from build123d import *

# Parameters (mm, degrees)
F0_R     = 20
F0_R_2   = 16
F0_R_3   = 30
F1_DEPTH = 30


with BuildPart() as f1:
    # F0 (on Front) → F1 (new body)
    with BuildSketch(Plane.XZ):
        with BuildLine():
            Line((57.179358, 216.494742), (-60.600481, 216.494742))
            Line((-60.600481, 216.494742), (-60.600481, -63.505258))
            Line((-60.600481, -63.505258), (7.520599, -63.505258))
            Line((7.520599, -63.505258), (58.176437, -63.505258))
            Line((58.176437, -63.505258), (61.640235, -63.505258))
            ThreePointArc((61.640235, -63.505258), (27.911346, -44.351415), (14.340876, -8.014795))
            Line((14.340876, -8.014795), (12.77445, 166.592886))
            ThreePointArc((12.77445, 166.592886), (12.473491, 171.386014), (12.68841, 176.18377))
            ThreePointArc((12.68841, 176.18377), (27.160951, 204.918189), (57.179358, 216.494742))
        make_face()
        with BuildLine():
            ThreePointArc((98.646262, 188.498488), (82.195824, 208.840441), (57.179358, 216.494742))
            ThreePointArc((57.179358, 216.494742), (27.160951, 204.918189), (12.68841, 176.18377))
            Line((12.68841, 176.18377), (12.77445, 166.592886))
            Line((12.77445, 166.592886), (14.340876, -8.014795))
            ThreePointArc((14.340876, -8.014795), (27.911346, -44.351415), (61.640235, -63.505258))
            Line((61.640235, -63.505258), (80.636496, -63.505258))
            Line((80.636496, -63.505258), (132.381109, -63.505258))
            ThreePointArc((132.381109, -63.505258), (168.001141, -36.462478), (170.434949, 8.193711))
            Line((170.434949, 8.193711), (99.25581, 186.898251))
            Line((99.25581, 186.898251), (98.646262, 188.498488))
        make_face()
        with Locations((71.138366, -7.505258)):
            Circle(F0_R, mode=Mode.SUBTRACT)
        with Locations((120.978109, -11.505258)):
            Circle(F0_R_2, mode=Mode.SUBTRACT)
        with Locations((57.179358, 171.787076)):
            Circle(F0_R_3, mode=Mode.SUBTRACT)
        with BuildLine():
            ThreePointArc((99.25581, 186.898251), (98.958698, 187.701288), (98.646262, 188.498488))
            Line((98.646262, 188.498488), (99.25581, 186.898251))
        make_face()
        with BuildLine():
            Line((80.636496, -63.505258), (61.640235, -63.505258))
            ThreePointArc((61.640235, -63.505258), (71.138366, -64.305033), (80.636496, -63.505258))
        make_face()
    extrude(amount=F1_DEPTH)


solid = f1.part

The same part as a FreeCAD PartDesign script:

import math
import FreeCAD as App
import Part
import Sketcher
Q = App.Units.Quantity

doc = App.newDocument("Part")
body = doc.addObject("PartDesign::Body", "Body")

# Sketch on XZ plane
sketch1 = body.newObject("Sketcher::SketchObject", "Sketch")
sketch1.AttachmentSupport = (doc.getObject("XZ_Plane"), [""])
sketch1.MapMode = "FlatFace"
sketch1.addGeometry(Part.LineSegment(App.Vector(57.179358, 216.494742, 0), App.Vector(-60.600481, 216.494742, 0)), False)
sketch1.addGeometry(Part.LineSegment(App.Vector(-60.600481, 216.494742, 0), App.Vector(-60.600481, -63.505258, 0)), False)
sketch1.addGeometry(Part.LineSegment(App.Vector(-60.600481, -63.505258, 0), App.Vector(61.640235, -63.505258, 0)), False)
sketch1.addGeometry(Part.ArcOfCircle(Part.Circle(App.Vector(71.138366, -7.505231, 0), App.Vector(0, 0, 1), 56.799802), math.radians(-99.626292), math.radians(-80.373708)), False)
sketch1.addGeometry(Part.LineSegment(App.Vector(80.636496, -63.505258, 0), App.Vector(132.381109, -63.505258, 0)), False)
sketch1.addGeometry(Part.ArcOfCircle(Part.Circle(App.Vector(120.978108, -11.505258, 0), App.Vector(0, 0, 1), 53.235594), math.radians(-77.631472), math.radians(21.717701)), False)
sketch1.addGeometry(Part.LineSegment(App.Vector(170.434949, 8.193711, 0), App.Vector(99.25581, 186.898251, 0)), False)
sketch1.addGeometry(Part.ArcOfCircle(Part.Circle(App.Vector(57.177867, 171.786507, 0), App.Vector(0, 0, 1), 44.709262), math.radians(19.755089), math.radians(21.949694)), False)
sketch1.addGeometry(Part.ArcOfCircle(Part.Circle(App.Vector(57.179359, 171.787077, 0), App.Vector(0, 0, 1), 44.707665), math.radians(21.949731), math.radians(90.000001)), False)
sketch1.addGeometry(Part.Circle(App.Vector(71.138366, -7.505258, 0), App.Vector(0, 0, 1), 20), False)
sketch1.addGeometry(Part.Circle(App.Vector(120.978109, -11.505258, 0), App.Vector(0, 0, 1), 16), False)
sketch1.addGeometry(Part.ArcOfCircle(Part.Circle(App.Vector(57.179403, 171.787072, 0), App.Vector(0, 0, 1), 44.707711), math.radians(174.356229), math.radians(186.671747)), False)
sketch1.addGeometry(Part.LineSegment(App.Vector(12.68841, 176.18377, 0), App.Vector(12.77445, 166.592886, 0)), False)
sketch1.addGeometry(Part.Circle(App.Vector(57.179358, 171.787076, 0), App.Vector(0, 0, 1), 30), False)
sketch1.addConstraint(Sketcher.Constraint("Coincident", 0, 2, 1, 1))
sketch1.addConstraint(Sketcher.Constraint("Coincident", 1, 2, 2, 1))
sketch1.addConstraint(Sketcher.Constraint("Coincident", 2, 2, 3, 1))
sketch1.addConstraint(Sketcher.Constraint("Coincident", 3, 2, 4, 1))
sketch1.addConstraint(Sketcher.Constraint("Coincident", 4, 2, 5, 1))
sketch1.addConstraint(Sketcher.Constraint("Coincident", 5, 2, 6, 1))
sketch1.addConstraint(Sketcher.Constraint("Coincident", 6, 2, 7, 1))
sketch1.addConstraint(Sketcher.Constraint("Coincident", 7, 2, 8, 1))
sketch1.addConstraint(Sketcher.Constraint("Coincident", 8, 2, 0, 1))
sketch1.addConstraint(Sketcher.Constraint("Coincident", 11, 1, 12, 1))
sketch1.addConstraint(Sketcher.Constraint("Coincident", 12, 2, 11, 2))
sketch1.addConstraint(Sketcher.Constraint("Horizontal", 0))
sketch1.addConstraint(Sketcher.Constraint("Vertical", 1))
sketch1.addConstraint(Sketcher.Constraint("Horizontal", 2))
sketch1.addConstraint(Sketcher.Constraint("Horizontal", 4))
sketch1.addConstraint(Sketcher.Constraint("Coincident", 10, 3, 5, 3))
sketch1.addConstraint(Sketcher.Constraint("Coincident", 13, 3, 8, 3))
sketch1.addConstraint(Sketcher.Constraint("Diameter", 9, Q("40 mm")))
sketch1.addConstraint(Sketcher.Constraint("Diameter", 10, Q("32 mm")))
sketch1.addConstraint(Sketcher.Constraint("Diameter", 13, Q("60 mm")))
sketch1.addConstraint(Sketcher.Constraint("DistanceY", 1, 2, 1, 1, Q("280 mm")))
sketch1.addConstraint(Sketcher.Constraint("DistanceY", 5, 3, 9, 3, Q("4 mm")))
sketch1.addConstraint(Sketcher.Constraint("DistanceY", 1, 2, 9, 3, Q("56 mm")))
sketch1.addConstraint(Sketcher.Constraint("DistanceY", 3, 2, 9, 3, Q("56 mm")))
sketch1.addConstraint(Sketcher.Constraint("Radius", 3, Q("56.799802 mm")))
sketch1.addConstraint(Sketcher.Constraint("Radius", 7, Q("44.709262 mm")))
sketch1.addConstraint(Sketcher.Constraint("Radius", 11, Q("44.707711 mm")))
sketch1.addConstraint(Sketcher.Constraint("Radius", 5, Q("53.235594 mm")))
sketch1.addConstraint(Sketcher.Constraint("Radius", 8, Q("44.707665 mm")))
sketch1.addConstraint(Sketcher.Constraint("DistanceX", 0, 2, 0, 1, Q("117.779839 mm")))
sketch1.addConstraint(Sketcher.Constraint("DistanceX", 7, 3, 3, 3, Q("13.960498 mm")))
sketch1.addConstraint(Sketcher.Constraint("DistanceX", 7, 3, 9, 3, Q("13.960499 mm")))
sketch1.addConstraint(Sketcher.Constraint("DistanceY", 11, 3, 11, 1, Q("4.396698 mm")))
sketch1.addConstraint(Sketcher.Constraint("Distance", 12, Q("9.59127 mm")))
sketch1.addConstraint(Sketcher.Constraint("DistanceX", 2, 1, 2, 2, Q("122.240716 mm")))
sketch1.addConstraint(Sketcher.Constraint("DistanceX", 4, 1, 4, 2, Q("51.744613 mm")))
sketch1.addConstraint(Sketcher.Constraint("DistanceY", 3, 3, -1, 1, Q("7.505231 mm")))
sketch1.addConstraint(Sketcher.Constraint("DistanceX", -1, 1, 5, 3, Q("120.978108 mm")))
sketch1.addConstraint(Sketcher.Constraint("DistanceX", -1, 1, 8, 3, Q("57.179359 mm")))
sketch1.addConstraint(Sketcher.Constraint("DistanceY", 9, 3, -1, 1, Q("7.505258 mm")))
sketch1.addConstraint(Sketcher.Constraint("DistanceY", -1, 1, 11, 3, Q("171.787072 mm")))
sketch1.addConstraint(Sketcher.Constraint("DistanceX", -1, 1, 5, 2, Q("170.434949 mm")))
sketch1.addConstraint(Sketcher.Constraint("DistanceX", -1, 1, 6, 2, Q("99.25581 mm")))
sketch1.addConstraint(Sketcher.Constraint("DistanceY", -1, 1, 7, 2, Q("188.498488 mm")))
sketch1.addConstraint(Sketcher.Constraint("DistanceX", -1, 1, 11, 1, Q("12.68841 mm")))
pad1 = body.newObject("PartDesign::Pad", "Pad")
pad1.Profile = sketch1
pad1.Length = 30

doc.recompute()
